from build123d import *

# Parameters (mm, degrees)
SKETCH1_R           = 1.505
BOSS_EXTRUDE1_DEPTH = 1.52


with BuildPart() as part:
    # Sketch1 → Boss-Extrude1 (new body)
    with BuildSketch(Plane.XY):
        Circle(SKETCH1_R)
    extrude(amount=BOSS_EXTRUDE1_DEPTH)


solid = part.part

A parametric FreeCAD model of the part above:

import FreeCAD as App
import Part
import Sketcher
from FreeCAD import Vector
Q = App.Units.Quantity

doc = App.newDocument("Part")
params = doc.addObject("Spreadsheet::Sheet", "Params")
for row, (alias, value) in enumerate([
    ("sketch1_diameter", "3.01 mm"),
    ("pad1_length", "1.52 mm"),
], start=1):
    params.set(f"A{row}", alias)
    params.set(f"B{row}", "=" + value)
    params.setAlias(f"B{row}", alias)

body = doc.addObject("PartDesign::Body", "Body")

sketch1 = body.newObject("Sketcher::SketchObject", "Sketch")
sketch1.AttachmentSupport = (doc.getObject("XY_Plane"), [""])
sketch1.MapMode = "FlatFace"
sketch1.addGeometry(Part.Circle(Vector(0, 0, 0), Vector(0, 0, 1), 1.5), False)
sketch1.addConstraint(Sketcher.Constraint("Coincident", 0, 3, -1, 1))
sketch1.addConstraint(Sketcher.Constraint("Diameter", 0, Q("3.01 mm")))
sketch1.setExpression("Constraints[1]", "Params.sketch1_diameter")
pad1 = body.newObject("PartDesign::Pad", "Pad")
pad1.Profile = sketch1
pad1.setExpression("Length", "Params.pad1_length")

doc.recompute()
